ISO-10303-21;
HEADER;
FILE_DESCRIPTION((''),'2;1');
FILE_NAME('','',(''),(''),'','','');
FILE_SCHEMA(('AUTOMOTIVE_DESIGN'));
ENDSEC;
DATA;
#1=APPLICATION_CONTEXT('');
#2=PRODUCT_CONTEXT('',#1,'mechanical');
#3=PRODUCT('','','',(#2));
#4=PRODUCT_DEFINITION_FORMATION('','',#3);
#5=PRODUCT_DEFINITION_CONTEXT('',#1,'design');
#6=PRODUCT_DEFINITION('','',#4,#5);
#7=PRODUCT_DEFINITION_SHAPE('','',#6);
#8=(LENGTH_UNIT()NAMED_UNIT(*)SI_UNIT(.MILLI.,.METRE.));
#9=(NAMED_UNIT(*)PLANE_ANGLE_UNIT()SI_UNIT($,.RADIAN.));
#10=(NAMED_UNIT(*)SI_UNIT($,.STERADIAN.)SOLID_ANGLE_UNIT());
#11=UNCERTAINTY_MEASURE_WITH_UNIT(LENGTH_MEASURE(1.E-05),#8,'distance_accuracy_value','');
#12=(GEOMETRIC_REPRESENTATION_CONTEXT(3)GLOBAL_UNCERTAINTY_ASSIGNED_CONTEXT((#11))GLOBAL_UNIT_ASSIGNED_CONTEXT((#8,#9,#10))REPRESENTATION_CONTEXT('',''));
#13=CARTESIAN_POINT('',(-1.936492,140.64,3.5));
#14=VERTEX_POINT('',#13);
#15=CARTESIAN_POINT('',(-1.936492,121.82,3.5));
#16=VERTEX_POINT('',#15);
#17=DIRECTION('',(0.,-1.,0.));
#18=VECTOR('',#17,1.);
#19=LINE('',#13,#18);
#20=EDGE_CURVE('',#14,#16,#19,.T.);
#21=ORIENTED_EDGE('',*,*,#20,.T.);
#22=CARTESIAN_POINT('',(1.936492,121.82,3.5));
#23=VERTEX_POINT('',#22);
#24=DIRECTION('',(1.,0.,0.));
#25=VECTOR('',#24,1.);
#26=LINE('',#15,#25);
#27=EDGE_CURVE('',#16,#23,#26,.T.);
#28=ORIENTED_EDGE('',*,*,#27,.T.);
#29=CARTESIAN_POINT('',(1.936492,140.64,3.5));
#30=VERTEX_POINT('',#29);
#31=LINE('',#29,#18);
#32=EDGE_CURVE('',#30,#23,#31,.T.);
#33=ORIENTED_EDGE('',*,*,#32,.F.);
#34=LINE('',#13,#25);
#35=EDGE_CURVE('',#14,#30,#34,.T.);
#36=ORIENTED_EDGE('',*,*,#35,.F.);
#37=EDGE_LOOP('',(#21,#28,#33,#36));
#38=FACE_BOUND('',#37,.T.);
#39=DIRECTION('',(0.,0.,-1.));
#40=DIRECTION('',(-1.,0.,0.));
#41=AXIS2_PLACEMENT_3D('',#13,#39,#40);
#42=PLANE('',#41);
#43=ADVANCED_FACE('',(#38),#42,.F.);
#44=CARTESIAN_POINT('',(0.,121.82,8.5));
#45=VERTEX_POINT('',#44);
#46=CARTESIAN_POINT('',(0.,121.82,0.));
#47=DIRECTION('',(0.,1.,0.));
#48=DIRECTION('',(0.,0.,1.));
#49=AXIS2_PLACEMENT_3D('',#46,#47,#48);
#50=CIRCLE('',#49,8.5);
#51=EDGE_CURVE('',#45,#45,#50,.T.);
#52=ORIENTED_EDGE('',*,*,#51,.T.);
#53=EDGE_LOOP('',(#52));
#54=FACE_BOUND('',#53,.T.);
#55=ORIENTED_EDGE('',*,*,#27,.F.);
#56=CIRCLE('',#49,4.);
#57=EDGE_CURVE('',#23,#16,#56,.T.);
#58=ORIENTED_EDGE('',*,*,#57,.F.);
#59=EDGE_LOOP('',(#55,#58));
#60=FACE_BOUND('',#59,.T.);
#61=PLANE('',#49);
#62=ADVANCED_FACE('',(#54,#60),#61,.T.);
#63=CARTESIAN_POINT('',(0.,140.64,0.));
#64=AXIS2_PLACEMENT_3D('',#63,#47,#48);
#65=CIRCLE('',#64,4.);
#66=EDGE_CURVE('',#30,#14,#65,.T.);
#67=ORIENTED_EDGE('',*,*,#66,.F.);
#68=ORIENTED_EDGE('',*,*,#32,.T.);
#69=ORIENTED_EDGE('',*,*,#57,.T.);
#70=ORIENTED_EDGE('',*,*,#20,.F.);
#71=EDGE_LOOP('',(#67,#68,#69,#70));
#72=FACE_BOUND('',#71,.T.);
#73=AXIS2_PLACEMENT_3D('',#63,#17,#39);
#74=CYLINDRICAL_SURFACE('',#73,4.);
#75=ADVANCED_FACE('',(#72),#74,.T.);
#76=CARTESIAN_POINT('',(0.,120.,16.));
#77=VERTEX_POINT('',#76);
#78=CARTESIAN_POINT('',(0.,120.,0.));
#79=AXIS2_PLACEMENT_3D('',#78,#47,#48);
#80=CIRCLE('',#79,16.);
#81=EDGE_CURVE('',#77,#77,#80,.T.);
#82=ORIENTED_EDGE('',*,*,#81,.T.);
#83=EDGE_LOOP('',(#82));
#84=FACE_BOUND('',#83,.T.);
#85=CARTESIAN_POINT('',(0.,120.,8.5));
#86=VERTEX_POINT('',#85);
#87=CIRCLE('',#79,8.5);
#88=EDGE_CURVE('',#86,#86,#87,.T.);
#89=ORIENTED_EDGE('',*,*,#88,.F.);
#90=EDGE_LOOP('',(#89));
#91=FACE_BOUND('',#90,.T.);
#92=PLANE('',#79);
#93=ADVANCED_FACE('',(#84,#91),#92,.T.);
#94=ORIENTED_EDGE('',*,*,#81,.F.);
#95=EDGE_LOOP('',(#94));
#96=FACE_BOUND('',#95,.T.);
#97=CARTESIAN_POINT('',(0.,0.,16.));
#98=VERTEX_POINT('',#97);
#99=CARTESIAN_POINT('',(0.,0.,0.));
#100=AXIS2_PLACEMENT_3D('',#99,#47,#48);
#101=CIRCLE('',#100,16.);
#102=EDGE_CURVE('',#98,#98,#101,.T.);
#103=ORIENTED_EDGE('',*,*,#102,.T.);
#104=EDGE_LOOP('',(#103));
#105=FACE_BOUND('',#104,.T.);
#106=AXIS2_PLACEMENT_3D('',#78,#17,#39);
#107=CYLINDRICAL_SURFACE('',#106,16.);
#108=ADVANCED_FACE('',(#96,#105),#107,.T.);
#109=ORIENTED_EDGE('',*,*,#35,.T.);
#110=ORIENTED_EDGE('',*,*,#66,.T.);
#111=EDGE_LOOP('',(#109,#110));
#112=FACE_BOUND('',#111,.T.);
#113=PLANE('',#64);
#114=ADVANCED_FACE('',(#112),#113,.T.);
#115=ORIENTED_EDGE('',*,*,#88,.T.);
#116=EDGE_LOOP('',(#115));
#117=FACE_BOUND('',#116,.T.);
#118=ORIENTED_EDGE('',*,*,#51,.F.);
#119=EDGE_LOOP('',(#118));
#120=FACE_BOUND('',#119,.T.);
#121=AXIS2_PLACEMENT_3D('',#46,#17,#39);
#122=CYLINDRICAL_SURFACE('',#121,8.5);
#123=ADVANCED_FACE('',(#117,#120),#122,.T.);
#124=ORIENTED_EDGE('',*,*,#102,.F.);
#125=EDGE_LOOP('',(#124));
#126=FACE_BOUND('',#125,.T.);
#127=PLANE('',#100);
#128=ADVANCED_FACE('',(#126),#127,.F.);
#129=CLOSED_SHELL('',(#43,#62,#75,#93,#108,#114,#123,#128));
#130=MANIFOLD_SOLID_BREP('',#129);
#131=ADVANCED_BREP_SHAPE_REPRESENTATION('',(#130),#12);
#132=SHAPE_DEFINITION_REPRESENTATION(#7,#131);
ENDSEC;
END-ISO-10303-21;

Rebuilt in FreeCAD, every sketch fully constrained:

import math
import FreeCAD as App
import Part
import Sketcher
from FreeCAD import Vector
Q = App.Units.Quantity

doc = App.newDocument("Part")
body = doc.addObject("PartDesign::Body", "Body")

sketch1 = body.newObject("Sketcher::SketchObject", "Sketch")
sketch1.AttachmentSupport = (doc.getObject("XZ_Plane"), [""])
sketch1.MapMode = "FlatFace"
sketch1.addGeometry(Part.Circle(Vector(0, 0, 0), Vector(0, 0, 1), 16), False)
sketch1.addConstraint([
    Sketcher.Constraint("Coincident", 0, 3, -1, 1),
    Sketcher.Constraint("Diameter", 0, Q("32 mm")),
])
pad1 = body.newObject("PartDesign::Pad", "Pad")
pad1.Profile = sketch1
pad1.Length = 120
pad1.Reversed = True

sketch2 = body.newObject("Sketcher::SketchObject", "Sketch001")
sketch2.AttachmentSupport = (doc.getObject("XZ_Plane"), [""])
sketch2.MapMode = "FlatFace"
sketch2.AttachmentOffset = App.Placement(Vector(0, 0, -120), App.Rotation())
sketch2.addGeometry(Part.Circle(Vector(0, 0, 0), Vector(0, 0, 1), 8), False)
sketch2.addConstraint([
    Sketcher.Constraint("Coincident", 0, 3, -1, 1),
    Sketcher.Constraint("Diameter", 0, Q("17 mm")),
])
pad2 = body.newObject("PartDesign::Pad", "Pad001")
pad2.Profile = sketch2
pad2.Length = 1.82
pad2.Reversed = True

sketch3 = body.newObject("Sketcher::SketchObject", "Sketch002")
sketch3.AttachmentSupport = (doc.getObject("XZ_Plane"), [""])
sketch3.MapMode = "FlatFace"
sketch3.AttachmentOffset = App.Placement(Vector(0, 0, -121.82), App.Rotation())
sketch3.addGeometry([
    Part.LineSegment(Vector(-1.9, 3.5, 0), Vector(1.9, 3.5, 0)),
    Part.ArcOfCircle(Part.Circle(Vector(0, 0, 0), Vector(0, 0, 1), 4), math.radians(119), math.radians(421)),
], False)
sketch3.addConstraint([
    Sketcher.Constraint("Coincident", 0, 1, 1, 1),
    Sketcher.Constraint("Coincident", 1, 2, 0, 2),
    Sketcher.Constraint("Horizontal", 0),
    Sketcher.Constraint("Coincident", 1, 3, -1, 1),
    Sketcher.Constraint("Radius", 1, Q("4 mm")),
    Sketcher.Constraint("DistanceY", -1, 1, 0, 1, Q("3.5 mm")),
])
pad3 = body.newObject("PartDesign::Pad", "Pad002")
pad3.Profile = sketch3
pad3.Length = 18.82
pad3.Reversed = True

doc.recompute()
